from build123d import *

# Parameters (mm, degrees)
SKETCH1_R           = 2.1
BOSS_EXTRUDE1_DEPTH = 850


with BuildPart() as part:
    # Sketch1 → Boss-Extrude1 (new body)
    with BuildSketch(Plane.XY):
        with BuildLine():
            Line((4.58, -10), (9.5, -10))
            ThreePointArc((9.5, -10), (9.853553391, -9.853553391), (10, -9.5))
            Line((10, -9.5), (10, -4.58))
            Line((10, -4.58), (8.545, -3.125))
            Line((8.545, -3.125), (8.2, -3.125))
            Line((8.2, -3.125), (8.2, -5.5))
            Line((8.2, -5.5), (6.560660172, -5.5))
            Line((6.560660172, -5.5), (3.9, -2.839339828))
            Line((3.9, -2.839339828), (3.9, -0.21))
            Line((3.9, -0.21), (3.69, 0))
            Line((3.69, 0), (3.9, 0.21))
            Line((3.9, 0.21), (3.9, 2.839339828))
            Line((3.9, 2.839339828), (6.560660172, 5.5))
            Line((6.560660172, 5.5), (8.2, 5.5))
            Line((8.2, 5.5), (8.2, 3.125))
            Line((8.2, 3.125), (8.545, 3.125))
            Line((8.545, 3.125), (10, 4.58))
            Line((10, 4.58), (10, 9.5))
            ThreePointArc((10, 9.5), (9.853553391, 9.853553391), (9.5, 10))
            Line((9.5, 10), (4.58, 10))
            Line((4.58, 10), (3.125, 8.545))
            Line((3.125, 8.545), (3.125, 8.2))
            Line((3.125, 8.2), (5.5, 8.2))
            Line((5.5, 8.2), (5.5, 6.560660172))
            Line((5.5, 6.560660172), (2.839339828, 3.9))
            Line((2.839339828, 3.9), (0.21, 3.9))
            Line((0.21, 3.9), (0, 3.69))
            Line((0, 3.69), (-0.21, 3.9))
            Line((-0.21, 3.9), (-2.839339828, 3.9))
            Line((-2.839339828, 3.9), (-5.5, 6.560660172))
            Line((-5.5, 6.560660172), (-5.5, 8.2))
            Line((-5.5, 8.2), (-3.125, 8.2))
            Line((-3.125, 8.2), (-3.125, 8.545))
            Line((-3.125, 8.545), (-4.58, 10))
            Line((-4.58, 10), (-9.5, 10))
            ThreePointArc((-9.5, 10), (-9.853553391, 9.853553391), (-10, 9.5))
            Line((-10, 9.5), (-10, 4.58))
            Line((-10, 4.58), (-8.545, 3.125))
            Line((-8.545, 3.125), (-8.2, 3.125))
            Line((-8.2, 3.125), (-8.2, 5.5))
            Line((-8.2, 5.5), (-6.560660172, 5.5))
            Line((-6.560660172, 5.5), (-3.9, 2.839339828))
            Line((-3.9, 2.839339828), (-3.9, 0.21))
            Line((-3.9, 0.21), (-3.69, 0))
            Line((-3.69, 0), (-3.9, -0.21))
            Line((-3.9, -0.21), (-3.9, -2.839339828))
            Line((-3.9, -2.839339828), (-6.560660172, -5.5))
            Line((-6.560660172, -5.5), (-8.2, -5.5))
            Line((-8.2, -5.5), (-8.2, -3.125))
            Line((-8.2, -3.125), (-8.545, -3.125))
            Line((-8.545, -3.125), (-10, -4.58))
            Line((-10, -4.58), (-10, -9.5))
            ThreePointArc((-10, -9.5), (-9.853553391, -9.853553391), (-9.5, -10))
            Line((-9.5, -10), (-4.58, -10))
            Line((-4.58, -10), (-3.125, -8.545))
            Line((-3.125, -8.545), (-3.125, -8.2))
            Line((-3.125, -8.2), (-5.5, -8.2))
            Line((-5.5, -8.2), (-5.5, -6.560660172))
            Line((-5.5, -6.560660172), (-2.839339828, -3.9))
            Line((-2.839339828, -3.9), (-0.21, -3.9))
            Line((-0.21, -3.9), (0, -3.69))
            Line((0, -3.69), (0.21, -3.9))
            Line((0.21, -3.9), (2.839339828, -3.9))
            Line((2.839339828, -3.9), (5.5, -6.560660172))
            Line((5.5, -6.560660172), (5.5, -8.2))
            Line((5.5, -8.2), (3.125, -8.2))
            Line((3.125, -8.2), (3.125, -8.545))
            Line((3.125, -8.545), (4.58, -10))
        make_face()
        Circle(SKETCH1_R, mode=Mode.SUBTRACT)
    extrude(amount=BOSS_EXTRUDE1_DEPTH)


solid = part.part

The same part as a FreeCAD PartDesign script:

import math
import FreeCAD as App
import Part
import Sketcher

V = App.Vector

doc = App.newDocument("Part")
params = doc.addObject("Spreadsheet::Sheet", "Params")
for row, (alias, value) in enumerate([
    ("sketch1_diameter", "4.2 mm"),
    ("sketch1_radius", "0.5 mm"),
    ("sketch1_width", "4.92 mm"),
    ("pad1_length", "850 mm"),
], start=1):
    params.set(f"A{row}", alias)
    params.set(f"B{row}", "=" + value)
    params.setAlias(f"B{row}", alias)

body = doc.addObject("PartDesign::Body", "Body")

sketch1 = body.newObject("Sketcher::SketchObject", "Sketch")
sketch1.AttachmentSupport = (doc.getObject("XY_Plane"), [""])
sketch1.MapMode = "FlatFace"
sketch1.addGeometry([
    Part.LineSegment(V(4.58, -10, 0), V(9.5, -10, 0)),
    Part.ArcOfCircle(Part.Circle(V(9.5, -9.5, 0), V(0, 0, 1), 0.5), math.radians(-90), math.radians(0)),
    Part.LineSegment(V(10, -9.5, 0), V(10, -4.58, 0)),
    Part.LineSegment(V(10, -4.58, 0), V(8.54, -3.12, 0)),
    Part.LineSegment(V(8.54, -3.12, 0), V(8.2, -3.12, 0)),
    Part.LineSegment(V(8.2, -3.12, 0), V(8.2, -5.5, 0)),
    Part.LineSegment(V(8.2, -5.5, 0), V(6.56, -5.5, 0)),
    Part.LineSegment(V(6.56, -5.5, 0), V(3.9, -2.84, 0)),
    Part.LineSegment(V(3.9, -2.84, 0), V(3.9, -0.21, 0)),
    Part.LineSegment(V(3.9, -0.21, 0), V(3.69, 0, 0)),
    Part.LineSegment(V(3.69, 0, 0), V(3.9, 0.21, 0)),
    Part.LineSegment(V(3.9, 0.21, 0), V(3.9, 2.84, 0)),
    Part.LineSegment(V(3.9, 2.84, 0), V(6.56, 5.5, 0)),
    Part.LineSegment(V(6.56, 5.5, 0), V(8.2, 5.5, 0)),
    Part.LineSegment(V(8.2, 5.5, 0), V(8.2, 3.12, 0)),
    Part.LineSegment(V(8.2, 3.12, 0), V(8.54, 3.12, 0)),
    Part.LineSegment(V(8.54, 3.12, 0), V(10, 4.58, 0)),
    Part.LineSegment(V(10, 4.58, 0), V(10, 9.5, 0)),
    Part.ArcOfCircle(Part.Circle(V(9.5, 9.5, 0), V(0, 0, 1), 0.5), math.radians(0), math.radians(90)),
    Part.LineSegment(V(9.5, 10, 0), V(4.58, 10, 0)),
    Part.LineSegment(V(4.58, 10, 0), V(3.12, 8.54, 0)),
    Part.LineSegment(V(3.12, 8.54, 0), V(3.12, 8.2, 0)),
    Part.LineSegment(V(3.12, 8.2, 0), V(5.5, 8.2, 0)),
    Part.LineSegment(V(5.5, 8.2, 0), V(5.5, 6.56, 0)),
    Part.LineSegment(V(5.5, 6.56, 0), V(2.84, 3.9, 0)),
    Part.LineSegment(V(2.84, 3.9, 0), V(0.21, 3.9, 0)),
    Part.LineSegment(V(0.21, 3.9, 0), V(0, 3.69, 0)),
    Part.LineSegment(V(0, 3.69, 0), V(-0.21, 3.9, 0)),
    Part.LineSegment(V(-0.21, 3.9, 0), V(-2.84, 3.9, 0)),
    Part.LineSegment(V(-2.84, 3.9, 0), V(-5.5, 6.56, 0)),
    Part.LineSegment(V(-5.5, 6.56, 0), V(-5.5, 8.2, 0)),
    Part.LineSegment(V(-5.5, 8.2, 0), V(-3.12, 8.2, 0)),
    Part.LineSegment(V(-3.12, 8.2, 0), V(-3.12, 8.54, 0)),
    Part.LineSegment(V(-3.12, 8.54, 0), V(-4.58, 10, 0)),
    Part.LineSegment(V(-4.58, 10, 0), V(-9.5, 10, 0)),
    Part.ArcOfCircle(Part.Circle(V(-9.5, 9.5, 0), V(0, 0, 1), 0.5), math.radians(90), math.radians(180)),
    Part.LineSegment(V(-10, 9.5, 0), V(-10, 4.58, 0)),
    Part.LineSegment(V(-10, 4.58, 0), V(-8.54, 3.12, 0)),
    Part.LineSegment(V(-8.54, 3.12, 0), V(-8.2, 3.12, 0)),
    Part.LineSegment(V(-8.2, 3.12, 0), V(-8.2, 5.5, 0)),
    Part.LineSegment(V(-8.2, 5.5, 0), V(-6.56, 5.5, 0)),
    Part.LineSegment(V(-6.56, 5.5, 0), V(-3.9, 2.84, 0)),
    Part.LineSegment(V(-3.9, 2.84, 0), V(-3.9, 0.21, 0)),
    Part.LineSegment(V(-3.9, 0.21, 0), V(-3.69, 0, 0)),
    Part.LineSegment(V(-3.69, 0, 0), V(-3.9, -0.21, 0)),
    Part.LineSegment(V(-3.9, -0.21, 0), V(-3.9, -2.84, 0)),
    Part.LineSegment(V(-3.9, -2.84, 0), V(-6.56, -5.5, 0)),
    Part.LineSegment(V(-6.56, -5.5, 0), V(-8.2, -5.5, 0)),
    Part.LineSegment(V(-8.2, -5.5, 0), V(-8.2, -3.12, 0)),
    Part.LineSegment(V(-8.2, -3.12, 0), V(-8.54, -3.12, 0)),
    Part.LineSegment(V(-8.54, -3.12, 0), V(-10, -4.58, 0)),
    Part.LineSegment(V(-10, -4.58, 0), V(-10, -9.5, 0)),
    Part.ArcOfCircle(Part.Circle(V(-9.5, -9.5, 0), V(0, 0, 1), 0.5), math.radians(180), math.radians(270)),
    Part.LineSegment(V(-9.5, -10, 0), V(-4.58, -10, 0)),
    Part.LineSegment(V(-4.58, -10, 0), V(-3.12, -8.54, 0)),
    Part.LineSegment(V(-3.12, -8.54, 0), V(-3.12, -8.2, 0)),
    Part.LineSegment(V(-3.12, -8.2, 0), V(-5.5, -8.2, 0)),
    Part.LineSegment(V(-5.5, -8.2, 0), V(-5.5, -6.56, 0)),
    Part.LineSegment(V(-5.5, -6.56, 0), V(-2.84, -3.9, 0)),
    Part.LineSegment(V(-2.84, -3.9, 0), V(-0.21, -3.9, 0)),
    Part.LineSegment(V(-0.21, -3.9, 0), V(0, -3.69, 0)),
    Part.LineSegment(V(0, -3.69, 0), V(0.21, -3.9, 0)),
    Part.LineSegment(V(0.21, -3.9, 0), V(2.84, -3.9, 0)),
    Part.LineSegment(V(2.84, -3.9, 0), V(5.5, -6.56, 0)),
    Part.LineSegment(V(5.5, -6.56, 0), V(5.5, -8.2, 0)),
    Part.LineSegment(V(5.5, -8.2, 0), V(3.12, -8.2, 0)),
    Part.LineSegment(V(3.12, -8.2, 0), V(3.12, -8.54, 0)),
    Part.LineSegment(V(3.12, -8.54, 0), V(4.58, -10, 0)),
    Part.Circle(V(0, 0, 0), V(0, 0, 1), 2.1),
], False)
sketch1.addConstraint([
    Sketcher.Constraint("Tangent", 0, 2, 1, 1),
    Sketcher.Constraint("Tangent", 1, 2, 2, 1),
    Sketcher.Constraint("Coincident", 2, 2, 3, 1),
    Sketcher.Constraint("Coincident", 3, 2, 4, 1),
    Sketcher.Constraint("Coincident", 4, 2, 5, 1),
    Sketcher.Constraint("Coincident", 5, 2, 6, 1),
    Sketcher.Constraint("Coincident", 6, 2, 7, 1),
    Sketcher.Constraint("Coincident", 7, 2, 8, 1),
    Sketcher.Constraint("Coincident", 8, 2, 9, 1),
    Sketcher.Constraint("Coincident", 9, 2, 10, 1),
    Sketcher.Constraint("Coincident", 10, 2, 11, 1),
    Sketcher.Constraint("Coincident", 11, 2, 12, 1),
    Sketcher.Constraint("Coincident", 12, 2, 13, 1),
    Sketcher.Constraint("Coincident", 13, 2, 14, 1),
    Sketcher.Constraint("Coincident", 14, 2, 15, 1),
    Sketcher.Constraint("Coincident", 15, 2, 16, 1),
    Sketcher.Constraint("Coincident", 16, 2, 17, 1),
    Sketcher.Constraint("Tangent", 17, 2, 18, 1),
    Sketcher.Constraint("Tangent", 18, 2, 19, 1),
    Sketcher.Constraint("Coincident", 19, 2, 20, 1),
    Sketcher.Constraint("Coincident", 20, 2, 21, 1),
    Sketcher.Constraint("Coincident", 21, 2, 22, 1),
    Sketcher.Constraint("Coincident", 22, 2, 23, 1),
    Sketcher.Constraint("Coincident", 23, 2, 24, 1),
    Sketcher.Constraint("Coincident", 24, 2, 25, 1),
    Sketcher.Constraint("Coincident", 25, 2, 26, 1),
    Sketcher.Constraint("Coincident", 26, 2, 27, 1),
    Sketcher.Constraint("Coincident", 27, 2, 28, 1),
    Sketcher.Constraint("Coincident", 28, 2, 29, 1),
    Sketcher.Constraint("Coincident", 29, 2, 30, 1),
    Sketcher.Constraint("Coincident", 30, 2, 31, 1),
    Sketcher.Constraint("Coincident", 31, 2, 32, 1),
    Sketcher.Constraint("Coincident", 32, 2, 33, 1),
    Sketcher.Constraint("Coincident", 33, 2, 34, 1),
    Sketcher.Constraint("Tangent", 34, 2, 35, 1),
    Sketcher.Constraint("Tangent", 35, 2, 36, 1),
    Sketcher.Constraint("Coincident", 36, 2, 37, 1),
    Sketcher.Constraint("Coincident", 37, 2, 38, 1),
    Sketcher.Constraint("Coincident", 38, 2, 39, 1),
    Sketcher.Constraint("Coincident", 39, 2, 40, 1),
    Sketcher.Constraint("Coincident", 40, 2, 41, 1),
    Sketcher.Constraint("Coincident", 41, 2, 42, 1),
    Sketcher.Constraint("Coincident", 42, 2, 43, 1),
    Sketcher.Constraint("Coincident", 43, 2, 44, 1),
    Sketcher.Constraint("Coincident", 44, 2, 45, 1),
    Sketcher.Constraint("Coincident", 45, 2, 46, 1),
    Sketcher.Constraint("Coincident", 46, 2, 47, 1),
    Sketcher.Constraint("Coincident", 47, 2, 48, 1),
    Sketcher.Constraint("Coincident", 48, 2, 49, 1),
    Sketcher.Constraint("Coincident", 49, 2, 50, 1),
    Sketcher.Constraint("Coincident", 50, 2, 51, 1),
    Sketcher.Constraint("Tangent", 51, 2, 52, 1),
    Sketcher.Constraint("Tangent", 52, 2, 53, 1),
    Sketcher.Constraint("Coincident", 53, 2, 54, 1),
    Sketcher.Constraint("Coincident", 54, 2, 55, 1),
    Sketcher.Constraint("Coincident", 55, 2, 56, 1),
    Sketcher.Constraint("Coincident", 56, 2, 57, 1),
    Sketcher.Constraint("Coincident", 57, 2, 58, 1),
    Sketcher.Constraint("Coincident", 58, 2, 59, 1),
    Sketcher.Constraint("Coincident", 59, 2, 60, 1),
    Sketcher.Constraint("Coincident", 60, 2, 61, 1),
    Sketcher.Constraint("Coincident", 61, 2, 62, 1),
    Sketcher.Constraint("Coincident", 62, 2, 63, 1),
    Sketcher.Constraint("Coincident", 63, 2, 64, 1),
    Sketcher.Constraint("Coincident", 64, 2, 65, 1),
    Sketcher.Constraint("Coincident", 65, 2, 66, 1),
    Sketcher.Constraint("Coincident", 66, 2, 67, 1),
    Sketcher.Constraint("Coincident", 67, 2, 0, 1),
    Sketcher.Constraint("Horizontal", 0),
    Sketcher.Constraint("Vertical", 2),
    Sketcher.Constraint("Horizontal", 4),
    Sketcher.Constraint("Vertical", 5),
    Sketcher.Constraint("Horizontal", 6),
    Sketcher.Constraint("Vertical", 8),
    Sketcher.Constraint("Vertical", 11),
    Sketcher.Constraint("Horizontal", 13),
    Sketcher.Constraint("Vertical", 14),
    Sketcher.Constraint("Horizontal", 15),
    Sketcher.Constraint("Vertical", 17),
    Sketcher.Constraint("Horizontal", 19),
    Sketcher.Constraint("Vertical", 21),
    Sketcher.Constraint("Horizontal", 22),
    Sketcher.Constraint("Vertical", 23),
    Sketcher.Constraint("Horizontal", 25),
    Sketcher.Constraint("Horizontal", 28),
    Sketcher.Constraint("Vertical", 30),
    Sketcher.Constraint("Horizontal", 31),
    Sketcher.Constraint("Vertical", 32),
    Sketcher.Constraint("Horizontal", 34),
    Sketcher.Constraint("Vertical", 36),
    Sketcher.Constraint("Horizontal", 38),
    Sketcher.Constraint("Vertical", 39),
    Sketcher.Constraint("Horizontal", 40),
    Sketcher.Constraint("Vertical", 42),
    Sketcher.Constraint("Vertical", 45),
    Sketcher.Constraint("Horizontal", 47),
    Sketcher.Constraint("Vertical", 48),
    Sketcher.Constraint("Horizontal", 49),
    Sketcher.Constraint("Vertical", 51),
    Sketcher.Constraint("Horizontal", 53),
    Sketcher.Constraint("Vertical", 55),
    Sketcher.Constraint("Horizontal", 56),
    Sketcher.Constraint("Vertical", 57),
    Sketcher.Constraint("Horizontal", 59),
    Sketcher.Constraint("Horizontal", 62),
    Sketcher.Constraint("Vertical", 64),
    Sketcher.Constraint("Horizontal", 65),
    Sketcher.Constraint("Vertical", 66),
    Sketcher.Constraint("Coincident", 68, 3, -1, 1),
    Sketcher.Constraint("Equal", 1, 18),
    Sketcher.Constraint("Equal", 18, 35),
    Sketcher.Constraint("Equal", 35, 52),
    Sketcher.Constraint("Symmetric", 1, 3, 35, 3, -1, 1),
    Sketcher.Constraint("Symmetric", 18, 3, 52, 3, -1, 1),
    Sketcher.Constraint("Symmetric", 3, 2, 37, 2, -1, 1),
    Sketcher.Constraint("Symmetric", 5, 2, 39, 2, -1, 1),
    Sketcher.Constraint("Symmetric", 7, 2, 41, 2, -1, 1),
    Sketcher.Constraint("Symmetric", 9, 2, 43, 2, -1, 1),
    Sketcher.Constraint("Symmetric", 10, 2, 44, 2, -1, 1),
    Sketcher.Constraint("Symmetric", 12, 2, 46, 2, -1, 1),
    Sketcher.Constraint("Symmetric", 14, 2, 48, 2, -1, 1),
    Sketcher.Constraint("Symmetric", 20, 2, 54, 2, -1, 1),
    Sketcher.Constraint("Symmetric", 22, 2, 56, 2, -1, 1),
    Sketcher.Constraint("Symmetric", 24, 2, 58, 2, -1, 1),
    Sketcher.Constraint("Symmetric", 26, 2, 60, 2, -1, 1),
    Sketcher.Constraint("Symmetric", 27, 2, 61, 2, -1, 1),
    Sketcher.Constraint("Symmetric", 29, 2, 63, 2, -1, 1),
    Sketcher.Constraint("Symmetric", 31, 2, 65, 2, -1, 1),
    Sketcher.Constraint("Symmetric", 18, 3, 35, 3, -2),
    Sketcher.Constraint("Symmetric", 25, 2, 27, 2, -2),
    Sketcher.Constraint("Symmetric", 23, 2, 29, 2, -2),
    Sketcher.Constraint("Symmetric", 21, 2, 31, 2, -2),
    Sketcher.Constraint("Symmetric", 15, 2, 37, 2, -2),
    Sketcher.Constraint("Symmetric", 13, 2, 39, 2, -2),
    Sketcher.Constraint("Symmetric", 11, 2, 41, 2, -2),
    Sketcher.Constraint("PointOnObject", 9, 2, -1),
    Sketcher.Constraint("PointOnObject", 26, 2, -2),
    Sketcher.Constraint("Parallel", 3, 7),
    Sketcher.Constraint("Parallel", 7, 9),
    Sketcher.Constraint("Perpendicular", 9, 10),
    Sketcher.Constraint("Parallel", 10, 12),
    Sketcher.Constraint("Parallel", 12, 16),
    Sketcher.Constraint("Parallel", 16, 20),
    Sketcher.Constraint("Parallel", 20, 24),
    Sketcher.Constraint("Parallel", 24, 26),
    Sketcher.Constraint("Perpendicular", 26, 27),
    Sketcher.Constraint("Parallel", 27, 29),
    Sketcher.Constraint("Parallel", 29, 33),
    Sketcher.Constraint("Parallel", 33, 37),
    Sketcher.Constraint("Parallel", 37, 41),
    Sketcher.Constraint("Parallel", 41, 43),
    Sketcher.Constraint("Parallel", 44, 46),
    Sketcher.Constraint("Parallel", 46, 50),
    Sketcher.Constraint("Parallel", 50, 54),
    Sketcher.Constraint("Parallel", 54, 58),
    Sketcher.Constraint("Parallel", 58, 60),
    Sketcher.Constraint("Parallel", 61, 63),
    Sketcher.Constraint("Parallel", 63, 67),
    Sketcher.Constraint("Horizontal", 20, 2, 32, 2),
    Sketcher.Constraint("Horizontal", 2, 2, 50, 2),
    Sketcher.Constraint("Horizontal", 54, 2, 66, 2),
    Sketcher.Constraint("Equal", 53, 2),
    Sketcher.Constraint("Equal", 65, 5),
    Sketcher.Constraint("Equal", 62, 8),
    Sketcher.Constraint("Equal", 49, 21),
    Sketcher.Constraint("Equal", 47, 23),
    Sketcher.Constraint("Equal", 16, 20),
    Sketcher.Constraint("Equal", 12, 24),
    Sketcher.Constraint("Equal", 10, 26),
    Sketcher.Constraint("Diameter", 68, 4.2),
    Sketcher.Constraint("Radius", 1, 0.5),
    Sketcher.Constraint("DistanceY", 0, 2, -1, 1, 10.0),
    Sketcher.Constraint("DistanceX", 0, 1, 0, 2, 4.92),
    Sketcher.Constraint("DistanceX", -1, 1, 4, 2, 8.2),
    Sketcher.Constraint("DistanceY", 5, 2, -1, 1, 5.5),
    Sketcher.Constraint("DistanceX", -1, 1, 7, 2, 3.9),
    Sketcher.Constraint("DistanceX", 4, 2, 4, 1, 0.345),
    Sketcher.Constraint("DistanceY", 8, 2, -1, 1, 0.21),
    Sketcher.Constraint("DistanceX", 6, 2, 6, 1, 1.63934),
])
sketch1.setExpression("Constraints[169]", "Params.sketch1_diameter")
sketch1.setExpression("Constraints[170]", "Params.sketch1_radius")
sketch1.setExpression("Constraints[172]", "Params.sketch1_width")
pad1 = body.newObject("PartDesign::Pad", "Pad")
pad1.Profile = sketch1
pad1.setExpression("Length", "Params.pad1_length")

doc.recompute()
